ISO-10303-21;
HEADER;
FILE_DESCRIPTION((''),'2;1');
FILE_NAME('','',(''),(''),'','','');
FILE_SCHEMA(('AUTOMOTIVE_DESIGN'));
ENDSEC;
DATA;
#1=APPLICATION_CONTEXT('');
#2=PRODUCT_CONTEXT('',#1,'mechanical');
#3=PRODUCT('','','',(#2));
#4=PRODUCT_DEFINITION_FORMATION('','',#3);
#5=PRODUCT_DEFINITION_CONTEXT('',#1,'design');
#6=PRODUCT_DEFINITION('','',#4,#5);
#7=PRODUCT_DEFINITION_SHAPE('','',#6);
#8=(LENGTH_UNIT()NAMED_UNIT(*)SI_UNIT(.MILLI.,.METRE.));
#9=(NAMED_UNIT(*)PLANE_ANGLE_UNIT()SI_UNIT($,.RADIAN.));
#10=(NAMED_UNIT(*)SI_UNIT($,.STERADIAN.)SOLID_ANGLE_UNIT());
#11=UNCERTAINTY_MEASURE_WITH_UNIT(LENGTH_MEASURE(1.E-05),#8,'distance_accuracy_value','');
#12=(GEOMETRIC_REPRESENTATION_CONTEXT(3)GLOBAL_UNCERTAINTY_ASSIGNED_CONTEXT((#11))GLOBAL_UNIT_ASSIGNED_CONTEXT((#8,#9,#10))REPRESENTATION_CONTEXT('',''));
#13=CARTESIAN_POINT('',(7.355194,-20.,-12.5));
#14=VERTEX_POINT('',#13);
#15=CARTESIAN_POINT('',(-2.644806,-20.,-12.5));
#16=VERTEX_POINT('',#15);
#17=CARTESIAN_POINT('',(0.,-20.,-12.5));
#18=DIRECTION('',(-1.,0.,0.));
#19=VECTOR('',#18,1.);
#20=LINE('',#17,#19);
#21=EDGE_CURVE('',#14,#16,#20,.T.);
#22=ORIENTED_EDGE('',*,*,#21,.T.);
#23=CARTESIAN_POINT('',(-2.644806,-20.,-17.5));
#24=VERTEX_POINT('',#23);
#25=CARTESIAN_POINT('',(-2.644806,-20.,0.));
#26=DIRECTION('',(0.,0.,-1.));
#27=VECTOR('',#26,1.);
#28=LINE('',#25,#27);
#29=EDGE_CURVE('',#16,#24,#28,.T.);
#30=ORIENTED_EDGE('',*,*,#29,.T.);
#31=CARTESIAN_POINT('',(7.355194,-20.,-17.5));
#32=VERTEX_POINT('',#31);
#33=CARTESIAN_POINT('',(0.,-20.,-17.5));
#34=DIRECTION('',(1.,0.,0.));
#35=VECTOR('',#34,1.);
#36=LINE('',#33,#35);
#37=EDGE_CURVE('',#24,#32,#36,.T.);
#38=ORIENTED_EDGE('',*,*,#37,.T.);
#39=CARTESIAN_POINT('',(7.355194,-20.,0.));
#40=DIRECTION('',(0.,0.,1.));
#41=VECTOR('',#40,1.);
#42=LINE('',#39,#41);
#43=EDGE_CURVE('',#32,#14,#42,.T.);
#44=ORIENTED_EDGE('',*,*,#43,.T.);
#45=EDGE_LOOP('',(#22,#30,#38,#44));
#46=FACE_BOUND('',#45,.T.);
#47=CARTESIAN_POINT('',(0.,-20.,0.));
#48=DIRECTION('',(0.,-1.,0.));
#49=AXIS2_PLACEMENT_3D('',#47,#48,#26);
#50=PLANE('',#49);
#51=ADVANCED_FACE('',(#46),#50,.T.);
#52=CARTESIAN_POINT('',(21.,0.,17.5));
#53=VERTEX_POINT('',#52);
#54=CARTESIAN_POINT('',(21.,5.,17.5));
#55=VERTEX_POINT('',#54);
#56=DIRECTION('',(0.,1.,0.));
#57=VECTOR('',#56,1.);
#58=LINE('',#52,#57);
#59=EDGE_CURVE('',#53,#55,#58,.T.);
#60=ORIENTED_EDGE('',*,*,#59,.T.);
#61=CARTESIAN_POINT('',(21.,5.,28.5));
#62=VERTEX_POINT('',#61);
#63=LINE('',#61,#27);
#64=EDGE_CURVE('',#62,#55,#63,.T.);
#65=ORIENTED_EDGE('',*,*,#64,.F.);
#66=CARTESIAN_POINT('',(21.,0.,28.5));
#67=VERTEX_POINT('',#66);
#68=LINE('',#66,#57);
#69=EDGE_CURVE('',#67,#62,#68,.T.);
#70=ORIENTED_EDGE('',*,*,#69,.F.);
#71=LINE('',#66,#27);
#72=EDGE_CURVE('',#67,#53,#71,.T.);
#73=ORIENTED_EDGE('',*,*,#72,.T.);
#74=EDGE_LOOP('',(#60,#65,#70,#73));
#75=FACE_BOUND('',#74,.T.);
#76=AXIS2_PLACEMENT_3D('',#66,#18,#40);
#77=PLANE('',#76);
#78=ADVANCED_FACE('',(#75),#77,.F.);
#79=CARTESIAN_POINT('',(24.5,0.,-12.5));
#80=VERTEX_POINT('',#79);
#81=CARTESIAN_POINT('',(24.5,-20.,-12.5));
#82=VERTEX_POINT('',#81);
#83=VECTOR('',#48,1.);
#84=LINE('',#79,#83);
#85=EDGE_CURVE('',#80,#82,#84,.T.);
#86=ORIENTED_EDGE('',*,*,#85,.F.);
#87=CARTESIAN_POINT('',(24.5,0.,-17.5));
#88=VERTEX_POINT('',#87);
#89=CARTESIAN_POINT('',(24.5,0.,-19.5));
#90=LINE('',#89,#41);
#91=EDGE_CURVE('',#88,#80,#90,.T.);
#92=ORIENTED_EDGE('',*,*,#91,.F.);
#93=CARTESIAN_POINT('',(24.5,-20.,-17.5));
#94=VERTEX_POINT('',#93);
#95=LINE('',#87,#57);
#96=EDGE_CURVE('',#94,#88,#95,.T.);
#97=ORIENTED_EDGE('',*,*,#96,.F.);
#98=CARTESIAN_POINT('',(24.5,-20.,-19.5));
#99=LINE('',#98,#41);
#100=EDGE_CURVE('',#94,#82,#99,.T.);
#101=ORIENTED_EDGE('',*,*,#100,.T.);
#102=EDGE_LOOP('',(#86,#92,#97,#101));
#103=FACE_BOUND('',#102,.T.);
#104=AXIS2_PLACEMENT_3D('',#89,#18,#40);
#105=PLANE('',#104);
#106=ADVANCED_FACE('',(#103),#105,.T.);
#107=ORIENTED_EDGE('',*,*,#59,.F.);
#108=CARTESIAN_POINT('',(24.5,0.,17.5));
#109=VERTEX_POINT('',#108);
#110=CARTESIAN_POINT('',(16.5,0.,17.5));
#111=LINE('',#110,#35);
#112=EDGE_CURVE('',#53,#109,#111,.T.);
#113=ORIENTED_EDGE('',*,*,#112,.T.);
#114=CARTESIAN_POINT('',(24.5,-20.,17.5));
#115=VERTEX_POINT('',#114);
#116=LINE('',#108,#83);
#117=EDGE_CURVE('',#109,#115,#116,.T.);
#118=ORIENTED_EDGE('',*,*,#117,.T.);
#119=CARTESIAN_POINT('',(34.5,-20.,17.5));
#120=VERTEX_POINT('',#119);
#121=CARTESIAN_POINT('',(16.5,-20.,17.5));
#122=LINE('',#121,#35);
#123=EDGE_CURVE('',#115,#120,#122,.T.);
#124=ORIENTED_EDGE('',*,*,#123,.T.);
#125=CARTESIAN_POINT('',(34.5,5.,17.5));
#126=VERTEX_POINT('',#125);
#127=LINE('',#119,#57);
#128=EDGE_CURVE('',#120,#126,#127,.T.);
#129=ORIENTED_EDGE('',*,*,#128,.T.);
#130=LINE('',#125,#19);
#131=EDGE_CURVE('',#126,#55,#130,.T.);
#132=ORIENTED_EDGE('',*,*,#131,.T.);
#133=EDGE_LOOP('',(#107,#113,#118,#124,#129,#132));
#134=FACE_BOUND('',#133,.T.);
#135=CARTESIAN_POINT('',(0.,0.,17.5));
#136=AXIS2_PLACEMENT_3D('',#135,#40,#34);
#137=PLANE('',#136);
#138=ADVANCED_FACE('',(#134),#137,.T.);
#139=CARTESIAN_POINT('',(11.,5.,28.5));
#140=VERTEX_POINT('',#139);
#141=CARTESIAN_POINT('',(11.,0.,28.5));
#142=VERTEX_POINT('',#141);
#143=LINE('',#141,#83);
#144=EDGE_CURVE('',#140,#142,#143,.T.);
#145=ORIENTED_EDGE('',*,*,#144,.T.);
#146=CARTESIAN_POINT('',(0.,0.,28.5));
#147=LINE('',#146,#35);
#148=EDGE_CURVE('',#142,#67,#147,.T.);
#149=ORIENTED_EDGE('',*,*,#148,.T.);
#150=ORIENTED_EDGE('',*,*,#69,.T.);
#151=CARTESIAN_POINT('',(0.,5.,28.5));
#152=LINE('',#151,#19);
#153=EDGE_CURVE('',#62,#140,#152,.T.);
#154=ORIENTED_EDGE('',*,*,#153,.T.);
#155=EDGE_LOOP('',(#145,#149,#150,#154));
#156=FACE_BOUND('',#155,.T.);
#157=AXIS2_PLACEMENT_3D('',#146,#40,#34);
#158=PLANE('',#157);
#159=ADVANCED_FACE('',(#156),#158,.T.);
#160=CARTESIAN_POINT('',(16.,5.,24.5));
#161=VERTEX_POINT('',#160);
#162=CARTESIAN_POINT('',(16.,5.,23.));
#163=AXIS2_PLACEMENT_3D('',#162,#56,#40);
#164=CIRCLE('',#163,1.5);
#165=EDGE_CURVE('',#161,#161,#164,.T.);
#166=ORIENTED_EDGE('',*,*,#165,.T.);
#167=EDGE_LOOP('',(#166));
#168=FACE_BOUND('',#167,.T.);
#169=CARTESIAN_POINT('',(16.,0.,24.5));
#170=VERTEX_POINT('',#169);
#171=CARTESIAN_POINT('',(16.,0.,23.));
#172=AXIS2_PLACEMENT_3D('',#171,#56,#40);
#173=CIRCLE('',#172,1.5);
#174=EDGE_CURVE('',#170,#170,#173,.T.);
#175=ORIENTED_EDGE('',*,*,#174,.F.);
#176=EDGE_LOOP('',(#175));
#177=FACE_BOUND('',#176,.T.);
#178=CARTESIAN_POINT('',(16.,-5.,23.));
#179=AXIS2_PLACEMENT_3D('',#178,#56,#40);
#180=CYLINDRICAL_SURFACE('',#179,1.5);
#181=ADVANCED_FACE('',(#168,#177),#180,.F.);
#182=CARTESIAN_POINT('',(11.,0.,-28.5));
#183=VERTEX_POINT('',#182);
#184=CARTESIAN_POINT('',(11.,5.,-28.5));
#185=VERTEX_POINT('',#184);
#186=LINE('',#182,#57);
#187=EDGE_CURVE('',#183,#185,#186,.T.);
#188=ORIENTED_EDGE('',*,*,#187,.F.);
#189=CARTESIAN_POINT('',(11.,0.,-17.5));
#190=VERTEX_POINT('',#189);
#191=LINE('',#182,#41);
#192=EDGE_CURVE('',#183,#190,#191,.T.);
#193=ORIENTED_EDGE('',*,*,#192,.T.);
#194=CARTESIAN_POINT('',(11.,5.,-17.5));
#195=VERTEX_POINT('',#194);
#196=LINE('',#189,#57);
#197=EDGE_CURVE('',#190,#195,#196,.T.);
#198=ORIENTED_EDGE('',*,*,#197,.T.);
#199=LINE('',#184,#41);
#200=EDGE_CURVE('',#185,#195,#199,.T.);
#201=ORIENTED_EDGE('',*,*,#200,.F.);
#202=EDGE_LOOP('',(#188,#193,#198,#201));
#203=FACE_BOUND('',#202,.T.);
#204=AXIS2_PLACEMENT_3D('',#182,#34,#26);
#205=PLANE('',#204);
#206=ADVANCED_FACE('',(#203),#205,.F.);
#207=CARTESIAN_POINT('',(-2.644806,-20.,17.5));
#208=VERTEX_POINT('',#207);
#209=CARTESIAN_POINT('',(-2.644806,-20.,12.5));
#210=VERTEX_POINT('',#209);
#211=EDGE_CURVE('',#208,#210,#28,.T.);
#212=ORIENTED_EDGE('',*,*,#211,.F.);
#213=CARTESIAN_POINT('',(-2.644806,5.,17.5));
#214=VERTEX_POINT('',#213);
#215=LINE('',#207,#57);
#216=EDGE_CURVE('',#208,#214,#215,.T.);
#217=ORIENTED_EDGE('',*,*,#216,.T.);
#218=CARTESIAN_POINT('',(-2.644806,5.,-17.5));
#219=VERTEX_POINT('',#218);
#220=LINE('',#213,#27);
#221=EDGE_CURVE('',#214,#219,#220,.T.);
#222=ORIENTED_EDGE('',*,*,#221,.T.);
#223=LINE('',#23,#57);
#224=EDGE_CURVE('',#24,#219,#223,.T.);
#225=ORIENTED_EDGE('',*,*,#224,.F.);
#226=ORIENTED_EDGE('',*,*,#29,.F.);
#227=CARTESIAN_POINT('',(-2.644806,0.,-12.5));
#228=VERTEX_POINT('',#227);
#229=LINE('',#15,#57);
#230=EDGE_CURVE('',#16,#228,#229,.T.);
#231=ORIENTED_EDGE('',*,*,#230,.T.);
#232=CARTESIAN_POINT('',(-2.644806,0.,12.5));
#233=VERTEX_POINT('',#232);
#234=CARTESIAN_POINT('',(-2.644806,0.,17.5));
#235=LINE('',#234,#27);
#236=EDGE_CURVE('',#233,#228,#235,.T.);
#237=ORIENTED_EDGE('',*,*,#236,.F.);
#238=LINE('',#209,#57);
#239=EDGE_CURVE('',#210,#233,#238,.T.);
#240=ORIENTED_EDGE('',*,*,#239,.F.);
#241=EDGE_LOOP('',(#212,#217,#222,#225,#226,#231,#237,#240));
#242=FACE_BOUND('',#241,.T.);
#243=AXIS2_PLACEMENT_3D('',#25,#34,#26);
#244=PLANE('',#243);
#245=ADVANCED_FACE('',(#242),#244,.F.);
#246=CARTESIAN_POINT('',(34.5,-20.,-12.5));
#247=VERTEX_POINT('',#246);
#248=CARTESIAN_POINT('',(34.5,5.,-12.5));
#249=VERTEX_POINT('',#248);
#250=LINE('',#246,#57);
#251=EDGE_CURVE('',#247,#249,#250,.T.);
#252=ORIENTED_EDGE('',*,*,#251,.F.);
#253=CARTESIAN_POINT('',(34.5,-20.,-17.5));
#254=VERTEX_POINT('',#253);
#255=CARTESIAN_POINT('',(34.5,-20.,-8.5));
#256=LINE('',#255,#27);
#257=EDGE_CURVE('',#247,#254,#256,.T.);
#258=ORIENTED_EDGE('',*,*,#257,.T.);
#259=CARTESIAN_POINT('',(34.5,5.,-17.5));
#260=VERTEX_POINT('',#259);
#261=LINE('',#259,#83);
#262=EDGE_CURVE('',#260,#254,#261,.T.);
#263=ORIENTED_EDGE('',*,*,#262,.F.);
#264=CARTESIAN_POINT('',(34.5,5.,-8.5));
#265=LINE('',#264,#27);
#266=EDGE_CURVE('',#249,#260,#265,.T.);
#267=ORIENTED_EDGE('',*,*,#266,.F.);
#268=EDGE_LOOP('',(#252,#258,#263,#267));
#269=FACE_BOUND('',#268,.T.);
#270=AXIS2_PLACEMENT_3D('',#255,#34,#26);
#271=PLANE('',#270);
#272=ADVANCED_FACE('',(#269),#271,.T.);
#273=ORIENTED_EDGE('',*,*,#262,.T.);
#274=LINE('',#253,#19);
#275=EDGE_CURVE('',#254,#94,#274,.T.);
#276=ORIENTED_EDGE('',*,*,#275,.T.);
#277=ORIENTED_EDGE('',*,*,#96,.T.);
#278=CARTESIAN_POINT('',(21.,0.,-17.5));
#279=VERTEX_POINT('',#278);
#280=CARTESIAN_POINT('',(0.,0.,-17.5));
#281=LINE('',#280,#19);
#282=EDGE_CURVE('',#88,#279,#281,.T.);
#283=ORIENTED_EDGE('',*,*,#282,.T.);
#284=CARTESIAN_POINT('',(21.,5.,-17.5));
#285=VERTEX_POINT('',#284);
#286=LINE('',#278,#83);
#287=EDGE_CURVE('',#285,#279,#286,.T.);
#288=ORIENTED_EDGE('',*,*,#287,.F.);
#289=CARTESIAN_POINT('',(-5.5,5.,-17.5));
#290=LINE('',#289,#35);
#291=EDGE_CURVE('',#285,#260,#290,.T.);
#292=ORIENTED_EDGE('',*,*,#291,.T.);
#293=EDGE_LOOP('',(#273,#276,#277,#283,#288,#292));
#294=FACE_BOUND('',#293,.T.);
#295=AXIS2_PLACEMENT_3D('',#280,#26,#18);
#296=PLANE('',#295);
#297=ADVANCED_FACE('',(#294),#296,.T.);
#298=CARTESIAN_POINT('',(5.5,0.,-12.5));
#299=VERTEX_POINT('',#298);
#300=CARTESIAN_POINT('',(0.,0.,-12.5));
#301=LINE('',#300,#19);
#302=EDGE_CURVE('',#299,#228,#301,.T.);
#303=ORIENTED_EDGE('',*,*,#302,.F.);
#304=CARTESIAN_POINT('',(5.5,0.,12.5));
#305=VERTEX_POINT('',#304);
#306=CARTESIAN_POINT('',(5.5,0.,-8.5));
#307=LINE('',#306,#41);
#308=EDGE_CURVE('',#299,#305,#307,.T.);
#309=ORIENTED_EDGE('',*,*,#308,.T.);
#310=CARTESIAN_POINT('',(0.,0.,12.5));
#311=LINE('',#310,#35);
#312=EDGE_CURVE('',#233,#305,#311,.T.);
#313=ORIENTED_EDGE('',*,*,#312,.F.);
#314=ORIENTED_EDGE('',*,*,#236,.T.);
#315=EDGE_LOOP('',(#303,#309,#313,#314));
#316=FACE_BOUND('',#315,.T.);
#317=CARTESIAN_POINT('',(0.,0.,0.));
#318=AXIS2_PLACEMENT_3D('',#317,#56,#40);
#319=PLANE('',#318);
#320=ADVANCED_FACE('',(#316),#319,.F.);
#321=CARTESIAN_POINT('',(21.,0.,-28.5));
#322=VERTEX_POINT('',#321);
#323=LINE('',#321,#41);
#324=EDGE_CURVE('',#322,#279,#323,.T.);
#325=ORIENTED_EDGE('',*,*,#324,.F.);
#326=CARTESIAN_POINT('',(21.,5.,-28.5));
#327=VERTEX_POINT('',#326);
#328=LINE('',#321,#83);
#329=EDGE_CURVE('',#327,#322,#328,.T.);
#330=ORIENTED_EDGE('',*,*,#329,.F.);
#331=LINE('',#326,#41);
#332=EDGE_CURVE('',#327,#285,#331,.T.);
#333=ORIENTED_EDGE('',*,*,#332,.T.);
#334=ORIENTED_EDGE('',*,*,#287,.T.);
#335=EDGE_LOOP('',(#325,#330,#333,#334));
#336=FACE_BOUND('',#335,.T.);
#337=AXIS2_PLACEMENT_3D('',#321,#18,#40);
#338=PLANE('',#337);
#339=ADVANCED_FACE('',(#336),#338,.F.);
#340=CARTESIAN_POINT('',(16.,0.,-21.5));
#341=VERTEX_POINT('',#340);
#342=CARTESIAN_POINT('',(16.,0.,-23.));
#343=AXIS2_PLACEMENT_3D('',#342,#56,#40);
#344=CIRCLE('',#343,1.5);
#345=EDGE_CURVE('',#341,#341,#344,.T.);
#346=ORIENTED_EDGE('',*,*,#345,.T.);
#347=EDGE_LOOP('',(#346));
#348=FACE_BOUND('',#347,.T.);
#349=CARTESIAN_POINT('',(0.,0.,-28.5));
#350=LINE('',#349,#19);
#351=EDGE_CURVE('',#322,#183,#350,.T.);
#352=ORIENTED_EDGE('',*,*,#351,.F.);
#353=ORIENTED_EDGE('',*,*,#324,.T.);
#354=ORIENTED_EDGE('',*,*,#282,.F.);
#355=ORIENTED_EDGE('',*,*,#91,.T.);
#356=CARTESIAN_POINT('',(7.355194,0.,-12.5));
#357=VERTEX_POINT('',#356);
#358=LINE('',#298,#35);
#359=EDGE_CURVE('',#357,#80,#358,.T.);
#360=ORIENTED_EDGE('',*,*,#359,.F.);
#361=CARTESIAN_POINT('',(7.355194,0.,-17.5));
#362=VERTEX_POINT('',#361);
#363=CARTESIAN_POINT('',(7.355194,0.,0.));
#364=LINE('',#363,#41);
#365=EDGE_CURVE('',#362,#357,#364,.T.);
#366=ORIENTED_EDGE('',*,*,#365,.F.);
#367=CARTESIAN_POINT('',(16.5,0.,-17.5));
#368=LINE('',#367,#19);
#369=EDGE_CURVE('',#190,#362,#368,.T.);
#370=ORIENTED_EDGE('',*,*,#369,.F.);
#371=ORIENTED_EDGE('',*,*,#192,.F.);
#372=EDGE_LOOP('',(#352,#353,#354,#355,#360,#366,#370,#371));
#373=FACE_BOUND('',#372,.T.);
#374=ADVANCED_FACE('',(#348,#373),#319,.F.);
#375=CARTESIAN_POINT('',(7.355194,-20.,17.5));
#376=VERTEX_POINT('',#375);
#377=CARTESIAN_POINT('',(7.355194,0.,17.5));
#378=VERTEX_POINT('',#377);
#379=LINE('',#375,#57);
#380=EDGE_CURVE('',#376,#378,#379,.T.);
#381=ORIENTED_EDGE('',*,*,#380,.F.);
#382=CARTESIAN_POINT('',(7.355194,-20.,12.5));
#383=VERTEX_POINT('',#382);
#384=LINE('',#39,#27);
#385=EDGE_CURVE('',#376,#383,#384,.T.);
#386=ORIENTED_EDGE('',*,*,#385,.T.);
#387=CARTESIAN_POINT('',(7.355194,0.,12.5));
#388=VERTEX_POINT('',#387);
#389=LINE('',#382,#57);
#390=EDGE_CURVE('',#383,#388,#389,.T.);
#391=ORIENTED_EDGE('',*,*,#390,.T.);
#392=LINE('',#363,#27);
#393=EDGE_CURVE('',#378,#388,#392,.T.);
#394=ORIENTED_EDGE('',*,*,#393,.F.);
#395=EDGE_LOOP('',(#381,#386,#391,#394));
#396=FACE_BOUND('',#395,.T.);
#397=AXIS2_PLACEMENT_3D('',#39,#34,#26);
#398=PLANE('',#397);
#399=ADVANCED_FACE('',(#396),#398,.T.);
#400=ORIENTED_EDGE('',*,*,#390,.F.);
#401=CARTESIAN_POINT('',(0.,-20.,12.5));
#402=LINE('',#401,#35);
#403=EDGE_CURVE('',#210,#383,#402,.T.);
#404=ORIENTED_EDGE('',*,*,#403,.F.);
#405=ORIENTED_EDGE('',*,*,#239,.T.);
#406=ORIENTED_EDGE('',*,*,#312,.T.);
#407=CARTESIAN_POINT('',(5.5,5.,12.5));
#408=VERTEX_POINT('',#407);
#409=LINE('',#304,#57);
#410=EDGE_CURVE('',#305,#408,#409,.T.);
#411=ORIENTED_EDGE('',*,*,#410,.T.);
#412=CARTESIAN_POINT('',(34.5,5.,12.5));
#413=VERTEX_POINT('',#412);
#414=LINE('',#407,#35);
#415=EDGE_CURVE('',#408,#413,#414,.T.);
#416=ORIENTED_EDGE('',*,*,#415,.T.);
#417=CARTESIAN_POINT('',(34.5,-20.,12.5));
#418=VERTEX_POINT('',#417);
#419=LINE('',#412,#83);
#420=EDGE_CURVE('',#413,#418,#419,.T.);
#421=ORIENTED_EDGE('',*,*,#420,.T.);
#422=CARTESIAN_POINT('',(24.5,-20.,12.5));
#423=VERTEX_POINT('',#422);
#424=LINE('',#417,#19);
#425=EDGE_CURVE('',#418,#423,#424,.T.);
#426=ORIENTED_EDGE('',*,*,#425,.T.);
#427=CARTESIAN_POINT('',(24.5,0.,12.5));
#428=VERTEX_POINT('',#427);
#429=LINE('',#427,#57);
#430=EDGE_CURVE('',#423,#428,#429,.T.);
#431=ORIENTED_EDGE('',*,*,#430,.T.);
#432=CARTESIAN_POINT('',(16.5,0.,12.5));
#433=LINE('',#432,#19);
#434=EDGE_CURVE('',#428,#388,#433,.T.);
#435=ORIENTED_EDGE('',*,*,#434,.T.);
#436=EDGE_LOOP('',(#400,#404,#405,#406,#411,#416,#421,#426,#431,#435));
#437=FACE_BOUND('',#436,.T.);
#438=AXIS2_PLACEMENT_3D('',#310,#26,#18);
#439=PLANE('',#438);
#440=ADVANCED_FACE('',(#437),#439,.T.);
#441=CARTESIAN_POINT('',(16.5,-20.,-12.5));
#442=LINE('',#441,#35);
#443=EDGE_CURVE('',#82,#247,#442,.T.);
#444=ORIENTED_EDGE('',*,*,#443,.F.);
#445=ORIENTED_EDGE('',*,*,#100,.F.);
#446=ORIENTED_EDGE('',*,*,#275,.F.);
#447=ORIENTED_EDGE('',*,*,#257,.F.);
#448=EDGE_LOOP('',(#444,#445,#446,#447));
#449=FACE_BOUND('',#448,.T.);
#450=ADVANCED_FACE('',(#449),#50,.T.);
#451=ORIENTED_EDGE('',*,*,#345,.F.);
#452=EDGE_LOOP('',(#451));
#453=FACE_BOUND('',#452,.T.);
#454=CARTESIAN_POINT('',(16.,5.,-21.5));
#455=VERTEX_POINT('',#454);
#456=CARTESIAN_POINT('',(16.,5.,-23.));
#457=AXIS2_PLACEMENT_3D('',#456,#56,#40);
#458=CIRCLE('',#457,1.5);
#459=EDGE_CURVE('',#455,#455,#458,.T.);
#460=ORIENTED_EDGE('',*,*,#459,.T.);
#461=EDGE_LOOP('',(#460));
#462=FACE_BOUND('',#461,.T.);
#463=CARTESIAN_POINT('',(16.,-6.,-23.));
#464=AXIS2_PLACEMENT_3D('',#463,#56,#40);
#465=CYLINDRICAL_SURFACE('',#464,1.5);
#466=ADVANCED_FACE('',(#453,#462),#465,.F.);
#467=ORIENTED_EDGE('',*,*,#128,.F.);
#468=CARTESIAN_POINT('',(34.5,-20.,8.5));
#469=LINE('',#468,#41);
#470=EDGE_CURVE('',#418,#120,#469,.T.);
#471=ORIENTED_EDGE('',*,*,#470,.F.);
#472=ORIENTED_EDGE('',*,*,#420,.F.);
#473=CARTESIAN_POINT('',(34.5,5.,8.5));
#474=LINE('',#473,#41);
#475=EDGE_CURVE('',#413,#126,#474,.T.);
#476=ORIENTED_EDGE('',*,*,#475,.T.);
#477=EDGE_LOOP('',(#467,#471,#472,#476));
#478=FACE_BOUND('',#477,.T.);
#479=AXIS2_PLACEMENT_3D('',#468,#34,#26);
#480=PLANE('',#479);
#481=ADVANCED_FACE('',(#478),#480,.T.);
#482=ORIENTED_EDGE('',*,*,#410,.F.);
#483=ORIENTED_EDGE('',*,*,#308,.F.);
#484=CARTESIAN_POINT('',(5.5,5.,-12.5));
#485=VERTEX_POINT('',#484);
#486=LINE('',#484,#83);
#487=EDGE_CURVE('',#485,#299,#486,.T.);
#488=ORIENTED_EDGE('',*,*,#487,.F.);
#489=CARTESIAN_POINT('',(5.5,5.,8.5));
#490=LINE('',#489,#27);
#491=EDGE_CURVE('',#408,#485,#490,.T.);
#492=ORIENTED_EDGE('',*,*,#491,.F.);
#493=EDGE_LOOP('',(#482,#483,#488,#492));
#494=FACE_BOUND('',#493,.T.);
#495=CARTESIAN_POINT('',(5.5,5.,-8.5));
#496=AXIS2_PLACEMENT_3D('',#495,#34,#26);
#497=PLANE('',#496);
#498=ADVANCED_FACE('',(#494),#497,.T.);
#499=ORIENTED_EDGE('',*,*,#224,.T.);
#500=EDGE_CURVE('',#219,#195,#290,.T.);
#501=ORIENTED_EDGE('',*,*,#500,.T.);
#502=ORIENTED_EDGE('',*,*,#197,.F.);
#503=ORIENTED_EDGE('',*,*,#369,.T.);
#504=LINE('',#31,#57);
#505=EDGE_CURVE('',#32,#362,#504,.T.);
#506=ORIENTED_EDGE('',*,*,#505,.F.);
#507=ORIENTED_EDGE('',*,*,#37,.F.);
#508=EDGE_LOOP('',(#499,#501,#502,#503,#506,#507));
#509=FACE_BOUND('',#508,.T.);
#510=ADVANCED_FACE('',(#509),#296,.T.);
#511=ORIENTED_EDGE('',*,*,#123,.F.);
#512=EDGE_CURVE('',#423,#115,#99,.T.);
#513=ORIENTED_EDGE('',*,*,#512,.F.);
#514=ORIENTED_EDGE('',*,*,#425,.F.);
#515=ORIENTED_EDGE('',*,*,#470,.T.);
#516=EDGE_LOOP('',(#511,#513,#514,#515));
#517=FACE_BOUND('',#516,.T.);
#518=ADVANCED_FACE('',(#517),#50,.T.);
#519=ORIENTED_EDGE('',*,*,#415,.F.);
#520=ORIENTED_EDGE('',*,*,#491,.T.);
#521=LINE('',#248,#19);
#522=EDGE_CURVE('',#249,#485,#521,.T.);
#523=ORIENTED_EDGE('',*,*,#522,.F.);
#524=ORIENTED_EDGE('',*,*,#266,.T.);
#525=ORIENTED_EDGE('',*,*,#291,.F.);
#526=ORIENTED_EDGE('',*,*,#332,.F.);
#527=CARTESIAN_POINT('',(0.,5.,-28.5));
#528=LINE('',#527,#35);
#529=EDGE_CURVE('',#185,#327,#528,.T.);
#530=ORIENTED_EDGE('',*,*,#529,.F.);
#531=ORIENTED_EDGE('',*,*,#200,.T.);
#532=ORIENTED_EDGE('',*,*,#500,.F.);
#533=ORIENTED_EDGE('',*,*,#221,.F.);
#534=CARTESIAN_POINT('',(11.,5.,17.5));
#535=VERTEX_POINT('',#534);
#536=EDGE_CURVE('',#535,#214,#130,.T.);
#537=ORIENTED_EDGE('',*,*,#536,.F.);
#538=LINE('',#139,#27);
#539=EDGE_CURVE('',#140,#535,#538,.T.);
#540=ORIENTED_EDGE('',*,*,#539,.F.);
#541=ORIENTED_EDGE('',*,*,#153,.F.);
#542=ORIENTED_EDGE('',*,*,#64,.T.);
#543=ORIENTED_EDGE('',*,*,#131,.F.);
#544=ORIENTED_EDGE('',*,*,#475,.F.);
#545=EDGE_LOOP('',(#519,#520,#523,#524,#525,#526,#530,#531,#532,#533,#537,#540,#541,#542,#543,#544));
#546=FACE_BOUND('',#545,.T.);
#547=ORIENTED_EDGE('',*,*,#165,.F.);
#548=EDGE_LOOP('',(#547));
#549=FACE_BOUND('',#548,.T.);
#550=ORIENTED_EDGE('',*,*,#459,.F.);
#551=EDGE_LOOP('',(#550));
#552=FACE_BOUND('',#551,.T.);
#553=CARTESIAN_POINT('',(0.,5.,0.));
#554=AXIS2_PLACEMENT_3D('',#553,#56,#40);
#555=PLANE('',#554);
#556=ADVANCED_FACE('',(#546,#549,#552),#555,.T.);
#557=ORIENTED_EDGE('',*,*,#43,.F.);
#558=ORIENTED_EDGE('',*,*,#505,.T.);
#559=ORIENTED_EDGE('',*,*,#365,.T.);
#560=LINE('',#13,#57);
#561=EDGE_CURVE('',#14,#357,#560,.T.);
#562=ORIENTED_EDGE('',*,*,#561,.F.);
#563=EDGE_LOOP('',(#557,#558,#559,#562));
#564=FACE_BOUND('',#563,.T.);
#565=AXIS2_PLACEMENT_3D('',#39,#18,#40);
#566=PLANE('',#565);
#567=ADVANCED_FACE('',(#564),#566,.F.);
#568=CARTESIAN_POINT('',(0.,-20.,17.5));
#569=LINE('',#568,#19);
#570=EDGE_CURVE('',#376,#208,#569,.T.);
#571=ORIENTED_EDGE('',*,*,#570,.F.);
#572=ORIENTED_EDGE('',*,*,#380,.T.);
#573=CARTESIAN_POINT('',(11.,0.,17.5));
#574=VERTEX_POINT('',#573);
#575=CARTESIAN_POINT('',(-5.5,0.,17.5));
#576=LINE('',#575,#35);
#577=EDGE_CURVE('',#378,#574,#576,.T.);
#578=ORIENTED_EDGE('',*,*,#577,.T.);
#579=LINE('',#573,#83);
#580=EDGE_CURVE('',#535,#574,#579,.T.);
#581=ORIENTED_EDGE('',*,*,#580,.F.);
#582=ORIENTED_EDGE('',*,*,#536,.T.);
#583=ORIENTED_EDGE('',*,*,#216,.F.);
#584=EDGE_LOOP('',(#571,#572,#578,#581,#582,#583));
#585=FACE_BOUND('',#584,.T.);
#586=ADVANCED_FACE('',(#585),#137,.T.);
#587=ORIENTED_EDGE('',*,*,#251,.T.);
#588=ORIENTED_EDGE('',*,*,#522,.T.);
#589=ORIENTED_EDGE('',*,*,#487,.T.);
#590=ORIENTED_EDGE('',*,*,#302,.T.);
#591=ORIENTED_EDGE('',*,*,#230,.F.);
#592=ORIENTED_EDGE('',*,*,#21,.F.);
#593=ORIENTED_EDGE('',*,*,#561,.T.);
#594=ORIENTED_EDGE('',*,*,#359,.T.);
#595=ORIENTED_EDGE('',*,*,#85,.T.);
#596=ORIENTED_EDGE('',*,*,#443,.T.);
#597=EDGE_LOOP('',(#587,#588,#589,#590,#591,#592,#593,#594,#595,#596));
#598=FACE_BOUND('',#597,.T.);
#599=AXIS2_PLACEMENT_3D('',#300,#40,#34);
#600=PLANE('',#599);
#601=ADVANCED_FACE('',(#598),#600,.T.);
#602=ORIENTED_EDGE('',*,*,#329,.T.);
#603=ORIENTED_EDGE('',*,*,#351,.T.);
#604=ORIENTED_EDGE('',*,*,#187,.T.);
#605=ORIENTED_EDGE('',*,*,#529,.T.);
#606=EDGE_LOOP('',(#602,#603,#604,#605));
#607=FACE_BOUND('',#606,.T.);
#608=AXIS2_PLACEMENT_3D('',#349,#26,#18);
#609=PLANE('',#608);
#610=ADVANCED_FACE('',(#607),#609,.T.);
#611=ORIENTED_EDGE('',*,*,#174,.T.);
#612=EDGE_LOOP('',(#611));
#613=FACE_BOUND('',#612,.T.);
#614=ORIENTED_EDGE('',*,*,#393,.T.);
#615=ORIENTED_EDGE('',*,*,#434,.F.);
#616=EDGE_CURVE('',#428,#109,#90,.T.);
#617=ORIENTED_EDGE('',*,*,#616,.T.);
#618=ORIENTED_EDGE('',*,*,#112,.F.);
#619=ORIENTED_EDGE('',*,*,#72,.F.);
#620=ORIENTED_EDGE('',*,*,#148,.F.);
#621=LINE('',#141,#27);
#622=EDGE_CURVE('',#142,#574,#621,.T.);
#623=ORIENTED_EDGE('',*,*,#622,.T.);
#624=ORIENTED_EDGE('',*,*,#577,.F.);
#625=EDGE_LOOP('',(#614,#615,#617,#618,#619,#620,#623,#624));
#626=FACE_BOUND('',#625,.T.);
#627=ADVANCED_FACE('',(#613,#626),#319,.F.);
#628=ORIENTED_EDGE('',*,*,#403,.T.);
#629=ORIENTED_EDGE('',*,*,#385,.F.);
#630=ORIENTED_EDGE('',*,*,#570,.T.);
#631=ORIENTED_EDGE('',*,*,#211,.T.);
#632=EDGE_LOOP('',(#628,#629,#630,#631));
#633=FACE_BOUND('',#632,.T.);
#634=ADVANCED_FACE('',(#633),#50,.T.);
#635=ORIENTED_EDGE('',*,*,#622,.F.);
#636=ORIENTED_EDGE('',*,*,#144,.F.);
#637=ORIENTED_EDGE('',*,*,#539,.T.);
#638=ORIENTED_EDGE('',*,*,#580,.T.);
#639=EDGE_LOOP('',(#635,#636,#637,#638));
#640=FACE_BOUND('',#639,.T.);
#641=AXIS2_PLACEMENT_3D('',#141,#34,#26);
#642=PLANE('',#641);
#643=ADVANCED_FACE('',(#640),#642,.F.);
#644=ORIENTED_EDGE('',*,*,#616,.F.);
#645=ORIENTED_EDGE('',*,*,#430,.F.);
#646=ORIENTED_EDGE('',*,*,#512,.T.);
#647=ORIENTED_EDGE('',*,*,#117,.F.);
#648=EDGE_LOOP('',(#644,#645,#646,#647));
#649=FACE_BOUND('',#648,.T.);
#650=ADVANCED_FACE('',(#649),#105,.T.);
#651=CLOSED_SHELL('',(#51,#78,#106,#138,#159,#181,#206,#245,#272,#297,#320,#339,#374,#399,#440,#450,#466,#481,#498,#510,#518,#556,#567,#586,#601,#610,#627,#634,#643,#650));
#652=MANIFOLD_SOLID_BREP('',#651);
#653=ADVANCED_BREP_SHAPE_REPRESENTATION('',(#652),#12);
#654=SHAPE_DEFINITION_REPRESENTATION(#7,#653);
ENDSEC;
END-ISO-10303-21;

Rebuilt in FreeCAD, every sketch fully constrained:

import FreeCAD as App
import Part
import Sketcher

V = App.Vector
Q = App.Units.Quantity


def add_polygon(sketch, points):
    """Adds a closed chain of lines whose ends are joined by coincident constraints."""
    first, n = sketch.GeometryCount, len(points)
    for a, b in zip(points, points[1:] + points[:1]):
        sketch.addGeometry(Part.LineSegment(App.Vector(*a, 0), App.Vector(*b, 0)), False)
    for i in range(n):
        sketch.addConstraint(Sketcher.Constraint("Coincident", first + i, 2, first + (i + 1) % n, 1))

doc = App.newDocument("Part")
body = doc.addObject("PartDesign::Body", "Body")

sketch1 = body.newObject("Sketcher::SketchObject", "Sketch")
sketch1.AttachmentSupport = (doc.getObject("XZ_Plane"), [""])
sketch1.MapMode = "FlatFace"
add_polygon(sketch1, [(6, 8), (6, -8), (-6, -8), (-6, 8)])
sketch1.addConstraint([
    Sketcher.Constraint("Vertical", 0),
    Sketcher.Constraint("Horizontal", 1),
    Sketcher.Constraint("Vertical", 2),
    Sketcher.Constraint("Horizontal", 3),
    Sketcher.Constraint("Symmetric", 0, 2, 2, 2, -1, 1),
    Sketcher.Constraint("DistanceX", 1, 2, 1, 1, Q("11 mm")),
    Sketcher.Constraint("DistanceY", 0, 2, 0, 1, Q("17 mm")),
])
pad1 = body.newObject("PartDesign::Pad", "Pad")
pad1.Profile = sketch1
pad1.Length = 5
pad1.Reversed = True

sketch2 = body.newObject("Sketcher::SketchObject", "Sketch001")
sketch2.AttachmentSupport = (doc.getObject("XY_Plane"), [""])
sketch2.MapMode = "FlatFace"
sketch2.AttachmentOffset = App.Placement(V(0, 0, 8.5), App.Rotation())
add_polygon(sketch2, [(-6, 5), (-6, 0), (6, 0), (6, 5)])
sketch2.addConstraint([
    Sketcher.Constraint("Vertical", 0),
    Sketcher.Constraint("Horizontal", 1),
    Sketcher.Constraint("Vertical", 2),
    Sketcher.Constraint("Horizontal", 3),
    Sketcher.Constraint("Symmetric", 0, 2, 1, 2, -1, 1),
    Sketcher.Constraint("DistanceX", 1, 1, 1, 2, Q("11 mm")),
    Sketcher.Constraint("DistanceY", 0, 2, 0, 1, Q("5 mm")),
])
pad2 = body.newObject("PartDesign::Pad", "Pad001")
pad2.Profile = sketch2
pad2.Length = 5

sketch3 = body.newObject("Sketcher::SketchObject", "Sketch002")
sketch3.AttachmentSupport = (doc.getObject("YZ_Plane"), [""])
sketch3.MapMode = "FlatFace"
sketch3.AttachmentOffset = App.Placement(V(0, 0, 5.5), App.Rotation())
add_polygon(sketch3, [(5, 14), (0, 14), (0, 8), (5, 8)])
sketch3.addConstraint([
    Sketcher.Constraint("Horizontal", 0),
    Sketcher.Constraint("Vertical", 1),
    Sketcher.Constraint("Horizontal", 2),
    Sketcher.Constraint("Vertical", 3),
    Sketcher.Constraint("PointOnObject", 0, 2, -2),
    Sketcher.Constraint("Equal", 2, 1),
    Sketcher.Constraint("DistanceX", 0, 2, 0, 1, Q("5 mm")),
    Sketcher.Constraint("DistanceY", -1, 1, 0, 2, Q("13.5 mm")),
])
pad3 = body.newObject("PartDesign::Pad", "Pad002")
pad3.Profile = sketch3
pad3.Length = 21

sketch4 = body.newObject("Sketcher::SketchObject", "Sketch003")
sketch4.AttachmentSupport = (doc.getObject("XZ_Plane"), [""])
sketch4.MapMode = "FlatFace"
add_polygon(sketch4, [(16, 14), (16, 8), (26, 8), (26, 14)])
sketch4.addConstraint([
    Sketcher.Constraint("Vertical", 0),
    Sketcher.Constraint("Horizontal", 1),
    Sketcher.Constraint("Vertical", 2),
    Sketcher.Constraint("Horizontal", 3),
    Sketcher.Constraint("DistanceX", 1, 1, 1, 2, Q("10 mm")),
    Sketcher.Constraint("DistanceY", 0, 2, 0, 1, Q("5 mm")),
    Sketcher.Constraint("DistanceX", -1, 1, 0, 2, Q("16.5 mm")),
    Sketcher.Constraint("DistanceY", -1, 1, 0, 2, Q("8.5 mm")),
])
pad4 = body.newObject("PartDesign::Pad", "Pad003")
pad4.Profile = sketch4
pad4.Length = 20

sketch5 = body.newObject("Sketcher::SketchObject", "Sketch004")
sketch5.AttachmentSupport = (doc.getObject("XY_Plane"), [""])
sketch5.MapMode = "FlatFace"
sketch5.AttachmentOffset = App.Placement(V(0, 0, -8.5), App.Rotation())
add_polygon(sketch5, [(6, 5), (6, 0), (-6, 0), (-6, 5)])
sketch5.addConstraint([
    Sketcher.Constraint("Vertical", 0),
    Sketcher.Constraint("Horizontal", 1),
    Sketcher.Constraint("Vertical", 2),
    Sketcher.Constraint("Horizontal", 3),
    Sketcher.Constraint("Symmetric", 0, 2, 1, 2, -1, 1),
    Sketcher.Constraint("DistanceX", 1, 2, 1, 1, Q("11 mm")),
    Sketcher.Constraint("DistanceY", 0, 2, 0, 1, Q("5 mm")),
])
pad5 = body.newObject("PartDesign::Pad", "Pad004")
pad5.Profile = sketch5
pad5.Length = 5
pad5.Reversed = True

sketch6 = body.newObject("Sketcher::SketchObject", "Sketch005")
sketch6.AttachmentSupport = (doc.getObject("YZ_Plane"), [""])
sketch6.MapMode = "FlatFace"
sketch6.AttachmentOffset = App.Placement(V(0, 0, 5.5), App.Rotation())
add_polygon(sketch6, [(5, -8), (0, -8), (0, -14), (5, -14)])
sketch6.addConstraint([
    Sketcher.Constraint("Horizontal", 0),
    Sketcher.Constraint("Vertical", 1),
    Sketcher.Constraint("Horizontal", 2),
    Sketcher.Constraint("Vertical", 3),
    Sketcher.Constraint("PointOnObject", 0, 2, -2),
    Sketcher.Constraint("Equal", 2, 1),
    Sketcher.Constraint("DistanceX", 0, 2, 0, 1, Q("5 mm")),
    Sketcher.Constraint("DistanceY", 0, 2, -1, 1, Q("8.5 mm")),
])
pad6 = body.newObject("PartDesign::Pad", "Pad005")
pad6.Profile = sketch6
pad6.Length = 21

sketch7 = body.newObject("Sketcher::SketchObject", "Sketch006")
sketch7.AttachmentSupport = (doc.getObject("XZ_Plane"), [""])
sketch7.MapMode = "FlatFace"
add_polygon(sketch7, [(26, -14), (26, -8), (16, -8), (16, -14)])
sketch7.addConstraint([
    Sketcher.Constraint("Vertical", 0),
    Sketcher.Constraint("Horizontal", 1),
    Sketcher.Constraint("Vertical", 2),
    Sketcher.Constraint("Horizontal", 3),
    Sketcher.Constraint("DistanceX", 1, 2, 1, 1, Q("10 mm")),
    Sketcher.Constraint("DistanceY", 0, 1, 0, 2, Q("5 mm")),
    Sketcher.Constraint("DistanceX", -1, 1, 0, 2, Q("26.5 mm")),
    Sketcher.Constraint("DistanceY", 0, 2, -1, 1, Q("8.5 mm")),
])
pad7 = body.newObject("PartDesign::Pad", "Pad006")
pad7.Profile = sketch7
pad7.Length = 20

sketch8 = body.newObject("Sketcher::SketchObject", "Sketch007")
sketch8.AttachmentSupport = (doc.getObject("XY_Plane"), [""])
sketch8.MapMode = "FlatFace"
sketch8.AttachmentOffset = App.Placement(V(0, 0, 8.5), App.Rotation())
add_polygon(sketch8, [(26, -10), (26, -15), (16, -15), (16, -10)])
sketch8.addConstraint([
    Sketcher.Constraint("Vertical", 0),
    Sketcher.Constraint("Horizontal", 1),
    Sketcher.Constraint("Vertical", 2),
    Sketcher.Constraint("Horizontal", 3),
    Sketcher.Constraint("DistanceX", 1, 2, 1, 1, Q("10 mm")),
    Sketcher.Constraint("DistanceY", 0, 2, 0, 1, Q("5 mm")),
    Sketcher.Constraint("DistanceY", 0, 2, -1, 1, Q("15 mm")),
    Sketcher.Constraint("DistanceX", -1, 1, 0, 2, Q("26.5 mm")),
])
pad8 = body.newObject("PartDesign::Pad", "Pad007")
pad8.Profile = sketch8
pad8.Length = 3.5
pad8.Reversed = True

sketch9 = body.newObject("Sketcher::SketchObject", "Sketch008")
sketch9.AttachmentSupport = (doc.getObject("XY_Plane"), [""])
sketch9.MapMode = "FlatFace"
sketch9.AttachmentOffset = App.Placement(V(0, 0, -8.5), App.Rotation())
add_polygon(sketch9, [(16, -10), (16, -15), (26, -15), (26, -10)])
sketch9.addConstraint([
    Sketcher.Constraint("Vertical", 0),
    Sketcher.Constraint("Horizontal", 1),
    Sketcher.Constraint("Vertical", 2),
    Sketcher.Constraint("Horizontal", 3),
    Sketcher.Constraint("DistanceX", 1, 1, 1, 2, Q("10 mm")),
    Sketcher.Constraint("DistanceY", 0, 2, 0, 1, Q("5 mm")),
    Sketcher.Constraint("DistanceY", 0, 2, -1, 1, Q("15 mm")),
    Sketcher.Constraint("DistanceX", -1, 1, 0, 2, Q("16.5 mm")),
])
pad9 = body.newObject("PartDesign::Pad", "Pad008")
pad9.Profile = sketch9
pad9.Length = 3.5

sketch10 = body.newObject("Sketcher::SketchObject", "Sketch009")
sketch10.AttachmentSupport = (doc.getObject("YZ_Plane"), [""])
sketch10.MapMode = "FlatFace"
sketch10.AttachmentOffset = App.Placement(V(0, 0, 26.5), App.Rotation())
add_polygon(sketch10, [(-15, 6.4), (-15, 5), (-11.4, 5), (-11.4, 6.4)])
sketch10.addConstraint([
    Sketcher.Constraint("Vertical", 0),
    Sketcher.Constraint("Horizontal", 1),
    Sketcher.Constraint("Vertical", 2),
    Sketcher.Constraint("Horizontal", 3),
    Sketcher.Constraint("DistanceX", 0, 2, -1, 1, Q("15 mm")),
    Sketcher.Constraint("DistanceY", -1, 1, 0, 2, Q("5 mm")),
    Sketcher.Constraint("DistanceY", 0, 2, 0, 1, Q("1.379568 mm")),
    Sketcher.Constraint("DistanceX", 1, 1, 1, 2, Q("3.560216 mm")),
])
pocket1 = body.newObject("PartDesign::Pocket", "Pocket")
pocket1.Profile = sketch10
pocket1.Length = 14.5

sketch11 = body.newObject("Sketcher::SketchObject", "Sketch010")
sketch11.AttachmentSupport = (doc.getObject("YZ_Plane"), [""])
sketch11.MapMode = "FlatFace"
sketch11.AttachmentOffset = App.Placement(V(0, 0, 26.5), App.Rotation())
add_polygon(sketch11, [(-13, 6.4), (-15, 8.5), (-15, 6.4)])
sketch11.addConstraint([
    Sketcher.Constraint("Vertical", 1),
    Sketcher.Constraint("Horizontal", 2),
    Sketcher.Constraint("DistanceX", 2, 1, 2, 2, Q("2 mm")),
    Sketcher.Constraint("DistanceX", 0, 2, -1, 1, Q("15 mm")),
    Sketcher.Constraint("DistanceY", -1, 1, 0, 2, Q("8.5 mm")),
    Sketcher.Constraint("DistanceY", 1, 2, 1, 1, Q("2.120432 mm")),
])
pocket2 = body.newObject("PartDesign::Pocket", "Pocket001")
pocket2.Profile = sketch11
pocket2.Type = "ThroughAll"
pocket2.Midplane = True

sketch12 = body.newObject("Sketcher::SketchObject", "Sketch011")
sketch12.AttachmentSupport = (doc.getObject("YZ_Plane"), [""])
sketch12.MapMode = "FlatFace"
sketch12.AttachmentOffset = App.Placement(V(0, 0, 26.5), App.Rotation())
add_polygon(sketch12, [(-11.4, -5), (-15, -5), (-15, -6.4), (-11.4, -6.4)])
sketch12.addConstraint([
    Sketcher.Constraint("Horizontal", 0),
    Sketcher.Constraint("Vertical", 1),
    Sketcher.Constraint("Horizontal", 2),
    Sketcher.Constraint("Vertical", 3),
    Sketcher.Constraint("DistanceX", 0, 2, -1, 1, Q("15 mm")),
    Sketcher.Constraint("DistanceY", 0, 2, -1, 1, Q("5 mm")),
    Sketcher.Constraint("DistanceX", 0, 2, 0, 1, Q("3.56 mm")),
    Sketcher.Constraint("DistanceY", 1, 2, 1, 1, Q("1.38 mm")),
])
pocket3 = body.newObject("PartDesign::Pocket", "Pocket002")
pocket3.Profile = sketch12
pocket3.Length = 14.5

sketch13 = body.newObject("Sketcher::SketchObject", "Sketch012")
sketch13.AttachmentSupport = (doc.getObject("YZ_Plane"), [""])
sketch13.MapMode = "FlatFace"
sketch13.AttachmentOffset = App.Placement(V(0, 0, 26.5), App.Rotation())
add_polygon(sketch13, [(-13, -6.4), (-15, -6.4), (-15, -8.5)])
sketch13.addConstraint([
    Sketcher.Constraint("Horizontal", 0),
    Sketcher.Constraint("Vertical", 1),
    Sketcher.Constraint("DistanceX", 0, 2, 0, 1, Q("2 mm")),
    Sketcher.Constraint("DistanceX", 0, 2, -1, 1, Q("15 mm")),
    Sketcher.Constraint("DistanceY", 1, 2, 1, 1, Q("2.12 mm")),
    Sketcher.Constraint("DistanceY", 1, 2, -1, 1, Q("8.5 mm")),
])
pocket4 = body.newObject("PartDesign::Pocket", "Pocket003")
pocket4.Profile = sketch13
pocket4.Length = 14.5

sketch14 = body.newObject("Sketcher::SketchObject", "Sketch013")
sketch14.AttachmentSupport = (doc.getObject("XY_Plane"), [""])
sketch14.MapMode = "FlatFace"
sketch14.AttachmentOffset = App.Placement(V(0, 0, 13.5), App.Rotation())
add_polygon(sketch14, [(26, 5), (26, -20), (34, -20), (34, 5)])
sketch14.addConstraint([
    Sketcher.Constraint("Vertical", 0),
    Sketcher.Constraint("Horizontal", 1),
    Sketcher.Constraint("Vertical", 2),
    Sketcher.Constraint("Horizontal", 3),
    Sketcher.Constraint("DistanceX", 1, 1, 1, 2, Q("8 mm")),
    Sketcher.Constraint("DistanceY", 0, 2, 0, 1, Q("25 mm")),
    Sketcher.Constraint("DistanceY", 0, 2, -1, 1, Q("20 mm")),
    Sketcher.Constraint("DistanceX", -1, 1, 0, 2, Q("26.5 mm")),
])
pad10 = body.newObject("PartDesign::Pad", "Pad009")
pad10.Profile = sketch14
pad10.Length = 5
pad10.Reversed = True

sketch15 = body.newObject("Sketcher::SketchObject", "Sketch014")
sketch15.AttachmentSupport = (doc.getObject("XY_Plane"), [""])
sketch15.MapMode = "FlatFace"
sketch15.AttachmentOffset = App.Placement(V(0, 0, -13.5), App.Rotation())
add_polygon(sketch15, [(34, 5), (34, -20), (26, -20), (26, 5)])
sketch15.addConstraint([
    Sketcher.Constraint("Vertical", 0),
    Sketcher.Constraint("Horizontal", 1),
    Sketcher.Constraint("Vertical", 2),
    Sketcher.Constraint("Horizontal", 3),
    Sketcher.Constraint("DistanceX", 1, 2, 1, 1, Q("8 mm")),
    Sketcher.Constraint("DistanceY", 0, 2, 0, 1, Q("25 mm")),
    Sketcher.Constraint("DistanceY", 0, 2, -1, 1, Q("20 mm")),
    Sketcher.Constraint("DistanceX", -1, 1, 0, 2, Q("34.5 mm")),
])
pad11 = body.newObject("PartDesign::Pad", "Pad010")
pad11.Profile = sketch15
pad11.Length = 5

sketch16 = body.newObject("Sketcher::SketchObject", "Sketch015")
sketch16.AttachmentSupport = (doc.getObject("XY_Plane"), [""])
sketch16.MapMode = "FlatFace"
sketch16.AttachmentOffset = App.Placement(V(0, 0, 13.5), App.Rotation())
add_polygon(sketch16, [(-6, 5), (-6, 0), (16, 0), (16, -20), (34, -20), (34, 5)])
sketch16.addConstraint([
    Sketcher.Constraint("Vertical", 0),
    Sketcher.Constraint("Horizontal", 1),
    Sketcher.Constraint("Vertical", 2),
    Sketcher.Constraint("Horizontal", 3),
    Sketcher.Constraint("Vertical", 4),
    Sketcher.Constraint("Horizontal", 5),
    Sketcher.Constraint("PointOnObject", 0, 2, -1),
    Sketcher.Constraint("DistanceX", 1, 1, 1, 2, Q("22 mm")),
    Sketcher.Constraint("DistanceX", 3, 1, 3, 2, Q("18 mm")),
    Sketcher.Constraint("DistanceY", 0, 2, 0, 1, Q("5 mm")),
    Sketcher.Constraint("DistanceY", 2, 2, 2, 1, Q("20 mm")),
    Sketcher.Constraint("DistanceX", 0, 2, -1, 1, Q("5.5 mm")),
])
pad12 = body.newObject("PartDesign::Pad", "Pad011")
pad12.Profile = sketch16
pad12.Length = 4

sketch17 = body.newObject("Sketcher::SketchObject", "Sketch016")
sketch17.AttachmentSupport = (doc.getObject("XY_Plane"), [""])
sketch17.MapMode = "FlatFace"
sketch17.AttachmentOffset = App.Placement(V(0, 0, 5), App.Rotation())
add_polygon(sketch17, [(26, -10), (26, -15), (16, -15), (16, -10)])
sketch17.addConstraint([
    Sketcher.Constraint("Vertical", 0),
    Sketcher.Constraint("Horizontal", 1),
    Sketcher.Constraint("Vertical", 2),
    Sketcher.Constraint("Horizontal", 3),
    Sketcher.Constraint("DistanceX", 1, 2, 1, 1, Q("10 mm")),
    Sketcher.Constraint("DistanceY", 0, 2, 0, 1, Q("5 mm")),
    Sketcher.Constraint("DistanceY", 0, 2, -1, 1, Q("15 mm")),
    Sketcher.Constraint("DistanceX", -1, 1, 0, 2, Q("26.5 mm")),
])
pocket5 = body.newObject("PartDesign::Pocket", "Pocket004")
pocket5.Profile = sketch17
pocket5.Length = 3.5
pocket5.Reversed = True

sketch18 = body.newObject("Sketcher::SketchObject", "Sketch017")
sketch18.AttachmentSupport = (doc.getObject("XY_Plane"), [""])
sketch18.MapMode = "FlatFace"
sketch18.AttachmentOffset = App.Placement(V(0, 0, 8.5), App.Rotation())
add_polygon(sketch18, [(34, 5), (34, -20), (16, -20), (16, 0), (6, 0), (6, 5)])
sketch18.addConstraint([
    Sketcher.Constraint("Vertical", 0),
    Sketcher.Constraint("Horizontal", 1),
    Sketcher.Constraint("Vertical", 2),
    Sketcher.Constraint("Horizontal", 3),
    Sketcher.Constraint("Vertical", 4),
    Sketcher.Constraint("Horizontal", 5),
    Sketcher.Constraint("PointOnObject", 2, 2, -1),
    Sketcher.Constraint("DistanceX", 1, 2, 1, 1, Q("18 mm")),
    Sketcher.Constraint("DistanceX", 3, 2, 3, 1, Q("11 mm")),
    Sketcher.Constraint("DistanceY", 0, 2, 0, 1, Q("25 mm")),
    Sketcher.Constraint("DistanceY", 2, 1, 2, 2, Q("20 mm")),
    Sketcher.Constraint("DistanceX", -1, 1, 0, 2, Q("34.5 mm")),
])
pocket6 = body.newObject("PartDesign::Pocket", "Pocket005")
pocket6.Profile = sketch18
pocket6.Length = 4
pocket6.Reversed = True

sketch19 = body.newObject("Sketcher::SketchObject", "Sketch018")
sketch19.AttachmentSupport = (doc.getObject("XY_Plane"), [""])
sketch19.MapMode = "FlatFace"
sketch19.AttachmentOffset = App.Placement(V(0, 0, 17.5), App.Rotation())
add_polygon(sketch19, [(11, 5), (11, 0), (21, 0), (21, 5)])
sketch19.addConstraint([
    Sketcher.Constraint("Vertical", 0),
    Sketcher.Constraint("Horizontal", 1),
    Sketcher.Constraint("Vertical", 2),
    Sketcher.Constraint("Horizontal", 3),
    Sketcher.Constraint("PointOnObject", 0, 2, -1),
    Sketcher.Constraint("DistanceX", 1, 1, 1, 2, Q("10 mm")),
    Sketcher.Constraint("DistanceY", 0, 2, 0, 1, Q("5 mm")),
    Sketcher.Constraint("DistanceX", -1, 1, 0, 2, Q("11 mm")),
])
pad13 = body.newObject("PartDesign::Pad", "Pad012")
pad13.Profile = sketch19
pad13.Length = 11

sketch20 = body.newObject("Sketcher::SketchObject", "Sketch019")
sketch20.AttachmentSupport = (doc.getObject("XZ_Plane"), [""])
sketch20.MapMode = "FlatFace"
sketch20.AttachmentOffset = App.Placement(V(0, 0, -5), App.Rotation())
sketch20.addGeometry(Part.Circle(V(16, 23, 0), V(0, 0, 1), 1.5), False)
sketch20.addConstraint([
    Sketcher.Constraint("Diameter", 0, Q("3 mm")),
    Sketcher.Constraint("DistanceX", -1, 1, 0, 3, Q("16 mm")),
    Sketcher.Constraint("DistanceY", -1, 1, 0, 3, Q("23 mm")),
])
pocket7 = body.newObject("PartDesign::Pocket", "Pocket006")
pocket7.Profile = sketch20
pocket7.Length = 10
pocket7.Reversed = True

sketch21 = body.newObject("Sketcher::SketchObject", "Sketch020")
sketch21.AttachmentSupport = (doc.getObject("XY_Plane"), [""])
sketch21.MapMode = "FlatFace"
sketch21.AttachmentOffset = App.Placement(V(0, 0, -8.5), App.Rotation())
add_polygon(sketch21, [(16, -10), (16, -15), (26, -15), (26, -10)])
sketch21.addConstraint([
    Sketcher.Constraint("Vertical", 0),
    Sketcher.Constraint("Horizontal", 1),
    Sketcher.Constraint("Vertical", 2),
    Sketcher.Constraint("Horizontal", 3),
    Sketcher.Constraint("DistanceX", 1, 1, 1, 2, Q("10 mm")),
    Sketcher.Constraint("DistanceY", 0, 2, 0, 1, Q("5 mm")),
    Sketcher.Constraint("DistanceY", 0, 2, -1, 1, Q("15 mm")),
    Sketcher.Constraint("DistanceX", -1, 1, 0, 2, Q("16.5 mm")),
])
pocket8 = body.newObject("PartDesign::Pocket", "Pocket007")
pocket8.Profile = sketch21
pocket8.Length = 4
pocket8.Reversed = True

sketch22 = body.newObject("Sketcher::SketchObject", "Sketch021")
sketch22.AttachmentSupport = (doc.getObject("XY_Plane"), [""])
sketch22.MapMode = "FlatFace"
sketch22.AttachmentOffset = App.Placement(V(0, 0, -13.5), App.Rotation())
add_polygon(sketch22, [(34, 5), (34, -20), (16, -20), (16, 0), (-6, 0), (-6, 5)])
sketch22.addConstraint([
    Sketcher.Constraint("Vertical", 0),
    Sketcher.Constraint("Horizontal", 1),
    Sketcher.Constraint("Vertical", 2),
    Sketcher.Constraint("Horizontal", 3),
    Sketcher.Constraint("Vertical", 4),
    Sketcher.Constraint("Horizontal", 5),
    Sketcher.Constraint("PointOnObject", 2, 2, -1),
    Sketcher.Constraint("DistanceX", 1, 2, 1, 1, Q("18 mm")),
    Sketcher.Constraint("DistanceX", 3, 2, 3, 1, Q("22 mm")),
    Sketcher.Constraint("DistanceY", 0, 2, 0, 1, Q("25 mm")),
    Sketcher.Constraint("DistanceY", 2, 1, 2, 2, Q("20 mm")),
    Sketcher.Constraint("DistanceX", -1, 1, 0, 2, Q("34.5 mm")),
])
pad14 = body.newObject("PartDesign::Pad", "Pad013")
pad14.Profile = sketch22
pad14.Length = 4
pad14.Reversed = True

sketch23 = body.newObject("Sketcher::SketchObject", "Sketch022")
sketch23.AttachmentSupport = (doc.getObject("XY_Plane"), [""])
sketch23.MapMode = "FlatFace"
sketch23.AttachmentOffset = App.Placement(V(0, 0, -8.5), App.Rotation())
add_polygon(sketch23, [(6, 5), (6, 0), (16, 0), (16, -20), (34, -20), (34, 5)])
sketch23.addConstraint([
    Sketcher.Constraint("Vertical", 0),
    Sketcher.Constraint("Horizontal", 1),
    Sketcher.Constraint("Vertical", 2),
    Sketcher.Constraint("Horizontal", 3),
    Sketcher.Constraint("Vertical", 4),
    Sketcher.Constraint("Horizontal", 5),
    Sketcher.Constraint("PointOnObject", 0, 2, -1),
    Sketcher.Constraint("DistanceX", 1, 1, 1, 2, Q("11 mm")),
    Sketcher.Constraint("DistanceX", 3, 1, 3, 2, Q("18 mm")),
    Sketcher.Constraint("DistanceY", 0, 2, 0, 1, Q("5 mm")),
    Sketcher.Constraint("DistanceY", 2, 2, 2, 1, Q("20 mm")),
    Sketcher.Constraint("DistanceX", -1, 1, 0, 2, Q("5.5 mm")),
])
pocket9 = body.newObject("PartDesign::Pocket", "Pocket008")
pocket9.Profile = sketch23
pocket9.Length = 4

sketch24 = body.newObject("Sketcher::SketchObject", "Sketch023")
sketch24.AttachmentSupport = (doc.getObject("XY_Plane"), [""])
sketch24.MapMode = "FlatFace"
sketch24.AttachmentOffset = App.Placement(V(0, 0, -17.5), App.Rotation())
add_polygon(sketch24, [(11, 0), (11, 5), (21, 5), (21, 0)])
sketch24.addConstraint([
    Sketcher.Constraint("Vertical", 0),
    Sketcher.Constraint("Horizontal", 1),
    Sketcher.Constraint("Vertical", 2),
    Sketcher.Constraint("Horizontal", 3),
    Sketcher.Constraint("PointOnObject", 2, 2, -1),
    Sketcher.Constraint("DistanceX", 1, 1, 1, 2, Q("10 mm")),
    Sketcher.Constraint("DistanceY", 0, 1, 0, 2, Q("5 mm")),
    Sketcher.Constraint("DistanceX", -1, 1, 0, 2, Q("11 mm")),
])
pad15 = body.newObject("PartDesign::Pad", "Pad014")
pad15.Profile = sketch24
pad15.Length = 11
pad15.Reversed = True

sketch25 = body.newObject("Sketcher::SketchObject", "Sketch024")
sketch25.AttachmentSupport = (doc.getObject("XZ_Plane"), [""])
sketch25.MapMode = "FlatFace"
sketch25.AttachmentOffset = App.Placement(V(0, 0, -5), App.Rotation())
sketch25.addGeometry(Part.Circle(V(16, -23, 0), V(0, 0, 1), 1.5), False)
sketch25.addConstraint([
    Sketcher.Constraint("Diameter", 0, Q("3 mm")),
    Sketcher.Constraint("DistanceX", -1, 1, 0, 3, Q("16 mm")),
    Sketcher.Constraint("DistanceY", 0, 3, -1, 1, Q("23 mm")),
])
pocket10 = body.newObject("PartDesign::Pocket", "Pocket009")
pocket10.Profile = sketch25
pocket10.Length = 11
pocket10.Reversed = True

sketch26 = body.newObject("Sketcher::SketchObject", "Sketch025")
sketch26.AttachmentSupport = (doc.getObject("XY_Plane"), [""])
sketch26.MapMode = "FlatFace"
sketch26.AttachmentOffset = App.Placement(V(0, 0, 17.5), App.Rotation())
add_polygon(sketch26, [(16, 0), (16, -20), (24, -20), (24, 0)])
sketch26.addConstraint([
    Sketcher.Constraint("Vertical", 0),
    Sketcher.Constraint("Horizontal", 1),
    Sketcher.Constraint("Vertical", 2),
    Sketcher.Constraint("Horizontal", 3),
    Sketcher.Constraint("PointOnObject", 2, 2, -1),
    Sketcher.Constraint("DistanceX", 1, 1, 1, 2, Q("8 mm")),
    Sketcher.Constraint("DistanceY", 0, 2, 0, 1, Q("20 mm")),
    Sketcher.Constraint("DistanceX", -1, 1, 0, 2, Q("16.5 mm")),
])
pocket11 = body.newObject("PartDesign::Pocket", "Pocket010")
pocket11.Profile = sketch26
pocket11.Length = 37

sketch27 = body.newObject("Sketcher::SketchObject", "Sketch026")
sketch27.AttachmentSupport = (doc.getObject("XZ_Plane"), [""])
sketch27.MapMode = "FlatFace"
add_polygon(sketch27, [(7, 12), (7, 18), (-3, 18), (-3, 12)])
sketch27.addConstraint([
    Sketcher.Constraint("Vertical", 0),
    Sketcher.Constraint("Horizontal", 1),
    Sketcher.Constraint("Vertical", 2),
    Sketcher.Constraint("Horizontal", 3),
    Sketcher.Constraint("DistanceX", 1, 2, 1, 1, Q("10 mm")),
    Sketcher.Constraint("DistanceY", 0, 1, 0, 2, Q("5 mm")),
    Sketcher.Constraint("DistanceY", -1, 1, 0, 2, Q("17.5 mm")),
    Sketcher.Constraint("DistanceX", -1, 1, 0, 2, Q("7.355194 mm")),
])
pad16 = body.newObject("PartDesign::Pad", "Pad015")
pad16.Profile = sketch27
pad16.Length = 20

sketch28 = body.newObject("Sketcher::SketchObject", "Sketch027")
sketch28.AttachmentSupport = (doc.getObject("XZ_Plane"), [""])
sketch28.MapMode = "FlatFace"
add_polygon(sketch28, [(-3, -12), (-3, -18), (7, -18), (7, -12)])
sketch28.addConstraint([
    Sketcher.Constraint("Vertical", 0),
    Sketcher.Constraint("Horizontal", 1),
    Sketcher.Constraint("Vertical", 2),
    Sketcher.Constraint("Horizontal", 3),
    Sketcher.Constraint("DistanceX", 1, 1, 1, 2, Q("10 mm")),
    Sketcher.Constraint("DistanceY", 0, 2, 0, 1, Q("5 mm")),
    Sketcher.Constraint("DistanceY", 0, 2, -1, 1, Q("17.5 mm")),
    Sketcher.Constraint("DistanceX", 0, 2, -1, 1, Q("2.644806 mm")),
])
pad17 = body.newObject("PartDesign::Pad", "Pad016")
pad17.Profile = sketch28
pad17.Length = 20

sketch29 = body.newObject("Sketcher::SketchObject", "Sketch028")
sketch29.AttachmentSupport = (doc.getObject("XY_Plane"), [""])
sketch29.MapMode = "FlatFace"
sketch29.AttachmentOffset = App.Placement(V(0, 0, -17.5), App.Rotation())
add_polygon(sketch29, [(-2.6, 5), (-2.6, 0), (-5.5, 0), (-5.5, 5)])
sketch29.addConstraint([
    Sketcher.Constraint("Vertical", 0),
    Sketcher.Constraint("Horizontal", 1),
    Sketcher.Constraint("Vertical", 2),
    Sketcher.Constraint("Horizontal", 3),
    Sketcher.Constraint("PointOnObject", 0, 2, -1),
    Sketcher.Constraint("DistanceY", 0, 2, 0, 1, Q("5 mm")),
    Sketcher.Constraint("DistanceX", 1, 2, -1, 1, Q("5.5 mm")),
    Sketcher.Constraint("DistanceX", 1, 2, 1, 1, Q("2.855194 mm")),
])
pocket12 = body.newObject("PartDesign::Pocket", "Pocket011")
pocket12.Profile = sketch29
pocket12.Length = 35
pocket12.Reversed = True

doc.recompute()
